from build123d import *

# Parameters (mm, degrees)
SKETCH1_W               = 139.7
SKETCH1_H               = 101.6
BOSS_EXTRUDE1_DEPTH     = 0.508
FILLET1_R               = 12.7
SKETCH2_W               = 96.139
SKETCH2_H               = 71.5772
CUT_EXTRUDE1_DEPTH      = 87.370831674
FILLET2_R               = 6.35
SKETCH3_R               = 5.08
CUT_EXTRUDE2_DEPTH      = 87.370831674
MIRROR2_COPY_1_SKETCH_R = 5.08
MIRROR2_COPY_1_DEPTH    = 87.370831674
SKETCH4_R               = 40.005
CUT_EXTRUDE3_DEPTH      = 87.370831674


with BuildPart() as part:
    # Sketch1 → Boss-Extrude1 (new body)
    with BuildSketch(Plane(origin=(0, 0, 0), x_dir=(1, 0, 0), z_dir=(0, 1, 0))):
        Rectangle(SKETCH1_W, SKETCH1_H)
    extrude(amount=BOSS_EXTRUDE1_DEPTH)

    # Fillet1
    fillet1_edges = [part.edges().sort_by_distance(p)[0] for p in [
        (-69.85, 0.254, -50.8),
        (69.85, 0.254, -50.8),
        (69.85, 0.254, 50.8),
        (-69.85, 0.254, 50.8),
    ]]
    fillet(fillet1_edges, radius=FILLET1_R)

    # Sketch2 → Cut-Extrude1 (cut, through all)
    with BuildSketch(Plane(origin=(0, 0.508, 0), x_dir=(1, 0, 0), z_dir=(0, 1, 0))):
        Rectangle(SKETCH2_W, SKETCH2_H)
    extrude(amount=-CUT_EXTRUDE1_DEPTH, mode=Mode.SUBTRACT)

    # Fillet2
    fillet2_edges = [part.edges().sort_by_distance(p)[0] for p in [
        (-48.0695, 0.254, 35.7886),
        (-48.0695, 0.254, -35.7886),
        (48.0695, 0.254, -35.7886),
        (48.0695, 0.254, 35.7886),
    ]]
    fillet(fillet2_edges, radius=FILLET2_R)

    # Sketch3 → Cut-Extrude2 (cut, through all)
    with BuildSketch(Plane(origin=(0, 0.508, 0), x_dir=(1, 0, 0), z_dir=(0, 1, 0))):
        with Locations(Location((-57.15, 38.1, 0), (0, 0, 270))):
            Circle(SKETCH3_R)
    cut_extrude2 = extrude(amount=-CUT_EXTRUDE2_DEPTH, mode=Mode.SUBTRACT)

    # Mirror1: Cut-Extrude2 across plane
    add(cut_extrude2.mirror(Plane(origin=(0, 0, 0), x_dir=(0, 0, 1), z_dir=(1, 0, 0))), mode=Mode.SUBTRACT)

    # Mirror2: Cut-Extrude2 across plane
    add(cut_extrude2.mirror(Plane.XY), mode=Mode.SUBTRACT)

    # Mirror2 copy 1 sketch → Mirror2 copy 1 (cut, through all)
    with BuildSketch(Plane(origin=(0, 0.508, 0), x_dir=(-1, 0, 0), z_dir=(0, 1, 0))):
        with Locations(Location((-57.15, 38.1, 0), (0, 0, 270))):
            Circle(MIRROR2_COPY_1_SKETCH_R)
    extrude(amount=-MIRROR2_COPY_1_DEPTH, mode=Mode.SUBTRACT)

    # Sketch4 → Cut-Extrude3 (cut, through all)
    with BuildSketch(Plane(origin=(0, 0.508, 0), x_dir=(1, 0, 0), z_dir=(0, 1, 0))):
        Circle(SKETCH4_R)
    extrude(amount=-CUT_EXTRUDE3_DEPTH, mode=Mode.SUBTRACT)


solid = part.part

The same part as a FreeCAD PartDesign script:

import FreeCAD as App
import Part
import Sketcher
Q = App.Units.Quantity


def edges_at(feature, points):
    """Names of the edges that pass closest to the given points."""
    edges = feature.Shape.Edges
    near = lambda p: min(range(len(edges)), key=lambda i: edges[i].distToShape(Part.Vertex(*p))[0])
    return sorted({f"Edge{near(p) + 1}" for p in points})

doc = App.newDocument("Part")
params = doc.addObject("Spreadsheet::Sheet", "Params")
for row, (alias, value) in enumerate([
    ("sketch1_height", "4 in"),
    ("sketch1_width", "5.5 in"),
    ("pad1_length", "0.02 in"),
    ("fillet_radius", "0.5 in"),
    ("sketch2_width", "3.785 in"),
    ("sketch2_height", "2.818 in"),
    ("fillet2_radius", "0.25 in"),
    ("sketch3_diameter", "0.4 in"),
    ("sketch4_diameter", "0.4 in"),
    ("sketch5_diameter", "3.15 in"),
], start=1):
    params.set(f"A{row}", alias)
    params.set(f"B{row}", "=" + value)
    params.setAlias(f"B{row}", alias)

body = doc.addObject("PartDesign::Body", "Body")

sketch1 = doc.addObject("Sketcher::SketchObject", "Sketch")
body.addObject(sketch1)
sketch1.AttachmentSupport = (doc.XZ_Plane, [""])
sketch1.MapMode = "FlatFace"
sketch1.addGeometry(Part.LineSegment(App.Vector(-69.85, -50.8, 0), App.Vector(-69.85, 50.8, 0)), False)
sketch1.addGeometry(Part.LineSegment(App.Vector(-69.85, 50.8, 0), App.Vector(69.85, 50.8, 0)), False)
sketch1.addGeometry(Part.LineSegment(App.Vector(69.85, 50.8, 0), App.Vector(69.85, -50.8, 0)), False)
sketch1.addGeometry(Part.LineSegment(App.Vector(69.85, -50.8, 0), App.Vector(-69.85, -50.8, 0)), False)
sketch1.addConstraint(Sketcher.Constraint("Coincident", 0, 2, 1, 1))
sketch1.addConstraint(Sketcher.Constraint("Coincident", 1, 2, 2, 1))
sketch1.addConstraint(Sketcher.Constraint("Coincident", 2, 2, 3, 1))
sketch1.addConstraint(Sketcher.Constraint("Coincident", 3, 2, 0, 1))
sketch1.addConstraint(Sketcher.Constraint("Vertical", 0))
sketch1.addConstraint(Sketcher.Constraint("Horizontal", 1))
sketch1.addConstraint(Sketcher.Constraint("Vertical", 2))
sketch1.addConstraint(Sketcher.Constraint("Horizontal", 3))
sketch1.addConstraint(Sketcher.Constraint("Symmetric", 0, 2, 2, 2, -1, 1))
sketch1.addConstraint(Sketcher.Constraint("DistanceY", 0, 1, 0, 2, Q("4 in")))
sketch1.addConstraint(Sketcher.Constraint("DistanceX", 1, 1, 1, 2, Q("5.5 in")))
sketch1.setExpression("Constraints[9]", "Params.sketch1_height")
sketch1.setExpression("Constraints[10]", "Params.sketch1_width")
pad1 = doc.addObject("PartDesign::Pad", "Pad")
body.addObject(pad1)
pad1.Profile = sketch1
pad1.setExpression("Length", "Params.pad1_length")
pad1.Reversed = True
doc.recompute()

fillet = doc.addObject("PartDesign::Fillet", "Fillet")
body.addObject(fillet)
fillet.Base = (pad1, edges_at(pad1, [
    (-69.85, 0.254, -50.8),
    (69.85, 0.254, -50.8),
    (69.85, 0.254, 50.8),
    (-69.85, 0.254, 50.8),
]))
fillet.setExpression("Radius", "Params.fillet_radius")

sketch2 = doc.addObject("Sketcher::SketchObject", "Sketch001")
body.addObject(sketch2)
sketch2.AttachmentSupport = (doc.XZ_Plane, [""])
sketch2.MapMode = "FlatFace"
sketch2.AttachmentOffset = App.Placement(App.Vector(0, 0, -0.02 * 25.4), App.Rotation())
sketch2.addGeometry(Part.LineSegment(App.Vector(-48.0695, -35.7886, 0), App.Vector(-48.0695, 35.7886, 0)), False)
sketch2.addGeometry(Part.LineSegment(App.Vector(-48.0695, 35.7886, 0), App.Vector(48.0695, 35.7886, 0)), False)
sketch2.addGeometry(Part.LineSegment(App.Vector(48.0695, 35.7886, 0), App.Vector(48.0695, -35.7886, 0)), False)
sketch2.addGeometry(Part.LineSegment(App.Vector(48.0695, -35.7886, 0), App.Vector(-48.0695, -35.7886, 0)), False)
sketch2.addConstraint(Sketcher.Constraint("Coincident", 0, 2, 1, 1))
sketch2.addConstraint(Sketcher.Constraint("Coincident", 1, 2, 2, 1))
sketch2.addConstraint(Sketcher.Constraint("Coincident", 2, 2, 3, 1))
sketch2.addConstraint(Sketcher.Constraint("Coincident", 3, 2, 0, 1))
sketch2.addConstraint(Sketcher.Constraint("Vertical", 0))
sketch2.addConstraint(Sketcher.Constraint("Horizontal", 1))
sketch2.addConstraint(Sketcher.Constraint("Vertical", 2))
sketch2.addConstraint(Sketcher.Constraint("Horizontal", 3))
sketch2.addConstraint(Sketcher.Constraint("Symmetric", 0, 2, 2, 2, -1, 1))
sketch2.addConstraint(Sketcher.Constraint("DistanceX", 1, 1, 1, 2, Q("3.785 in")))
sketch2.addConstraint(Sketcher.Constraint("DistanceY", 0, 1, 0, 2, Q("2.818 in")))
sketch2.setExpression("Constraints[9]", "Params.sketch2_width")
sketch2.setExpression("Constraints[10]", "Params.sketch2_height")
pocket1 = doc.addObject("PartDesign::Pocket", "Pocket")
body.addObject(pocket1)
pocket1.Profile = sketch2
pocket1.Type = "ThroughAll"
pocket1.Reversed = True
doc.recompute()

fillet2 = doc.addObject("PartDesign::Fillet", "Fillet001")
body.addObject(fillet2)
fillet2.Base = (pocket1, edges_at(pocket1, [
    (-48.069, 0.254, 35.789),
    (-48.069, 0.254, -35.789),
    (48.069, 0.254, -35.789),
    (48.069, 0.254, 35.789),
]))
fillet2.setExpression("Radius", "Params.fillet2_radius")

sketch3 = doc.addObject("Sketcher::SketchObject", "Sketch002")
body.addObject(sketch3)
sketch3.AttachmentSupport = (doc.XZ_Plane, [""])
sketch3.MapMode = "FlatFace"
sketch3.AttachmentOffset = App.Placement(App.Vector(0, 0, -0.02 * 25.4), App.Rotation())
sketch3.addGeometry(Part.Circle(App.Vector(-57.15, -38.1, 0), App.Vector(0, 0, 1), 5.08), False)
sketch3.addConstraint(Sketcher.Constraint("Diameter", 0, Q("0.4 in")))
sketch3.addConstraint(Sketcher.Constraint("DistanceY", 0, 3, -1, 1, Q("1.5 in")))
sketch3.addConstraint(Sketcher.Constraint("DistanceX", 0, 3, -1, 1, Q("2.25 in")))
sketch3.setExpression("Constraints[0]", "Params.sketch3_diameter")
pocket2 = doc.addObject("PartDesign::Pocket", "Pocket001")
body.addObject(pocket2)
pocket2.Profile = sketch3
pocket2.Type = "ThroughAll"
pocket2.Reversed = True
doc.recompute()

mirrored = doc.addObject("PartDesign::Mirrored", "Mirrored")
body.addObject(mirrored)
mirrored.Originals = [pocket2]
mirrored.MirrorPlane = (doc.YZ_Plane, [""])
body.Tip = mirrored
doc.recompute()

mirrored2 = doc.addObject("PartDesign::Mirrored", "Mirrored001")
body.addObject(mirrored2)
mirrored2.Originals = [pocket2]
mirrored2.MirrorPlane = (doc.XY_Plane, [""])
body.Tip = mirrored2

sketch4 = doc.addObject("Sketcher::SketchObject", "Sketch003")
body.addObject(sketch4)
sketch4.AttachmentSupport = (doc.XZ_Plane, [""])
sketch4.MapMode = "FlatFace"
sketch4.AttachmentOffset = App.Placement(App.Vector(0, 0, -0.02 * 25.4), App.Rotation())
sketch4.addGeometry(Part.Circle(App.Vector(57.15, 38.1, 0), App.Vector(0, 0, 1), 5.08), False)
sketch4.addConstraint(Sketcher.Constraint("Diameter", 0, Q("0.4 in")))
sketch4.addConstraint(Sketcher.Constraint("DistanceY", -1, 1, 0, 3, Q("1.5 in")))
sketch4.addConstraint(Sketcher.Constraint("DistanceX", -1, 1, 0, 3, Q("2.25 in")))
sketch4.setExpression("Constraints[0]", "Params.sketch4_diameter")
pocket3 = doc.addObject("PartDesign::Pocket", "Pocket002")
body.addObject(pocket3)
pocket3.Profile = sketch4
pocket3.Type = "ThroughAll"
pocket3.Reversed = True

sketch5 = doc.addObject("Sketcher::SketchObject", "Sketch004")
body.addObject(sketch5)
sketch5.AttachmentSupport = (doc.XZ_Plane, [""])
sketch5.MapMode = "FlatFace"
sketch5.AttachmentOffset = App.Placement(App.Vector(0, 0, -0.02 * 25.4), App.Rotation())
sketch5.addGeometry(Part.Circle(App.Vector(0, 0, 0), App.Vector(0, 0, 1), 40.005), False)
sketch5.addConstraint(Sketcher.Constraint("Coincident", 0, 3, -1, 1))
sketch5.addConstraint(Sketcher.Constraint("Diameter", 0, Q("3.15 in")))
sketch5.setExpression("Constraints[1]", "Params.sketch5_diameter")
pocket4 = doc.addObject("PartDesign::Pocket", "Pocket003")
body.addObject(pocket4)
pocket4.Profile = sketch5
pocket4.Type = "ThroughAll"
pocket4.Reversed = True

doc.recompute()
